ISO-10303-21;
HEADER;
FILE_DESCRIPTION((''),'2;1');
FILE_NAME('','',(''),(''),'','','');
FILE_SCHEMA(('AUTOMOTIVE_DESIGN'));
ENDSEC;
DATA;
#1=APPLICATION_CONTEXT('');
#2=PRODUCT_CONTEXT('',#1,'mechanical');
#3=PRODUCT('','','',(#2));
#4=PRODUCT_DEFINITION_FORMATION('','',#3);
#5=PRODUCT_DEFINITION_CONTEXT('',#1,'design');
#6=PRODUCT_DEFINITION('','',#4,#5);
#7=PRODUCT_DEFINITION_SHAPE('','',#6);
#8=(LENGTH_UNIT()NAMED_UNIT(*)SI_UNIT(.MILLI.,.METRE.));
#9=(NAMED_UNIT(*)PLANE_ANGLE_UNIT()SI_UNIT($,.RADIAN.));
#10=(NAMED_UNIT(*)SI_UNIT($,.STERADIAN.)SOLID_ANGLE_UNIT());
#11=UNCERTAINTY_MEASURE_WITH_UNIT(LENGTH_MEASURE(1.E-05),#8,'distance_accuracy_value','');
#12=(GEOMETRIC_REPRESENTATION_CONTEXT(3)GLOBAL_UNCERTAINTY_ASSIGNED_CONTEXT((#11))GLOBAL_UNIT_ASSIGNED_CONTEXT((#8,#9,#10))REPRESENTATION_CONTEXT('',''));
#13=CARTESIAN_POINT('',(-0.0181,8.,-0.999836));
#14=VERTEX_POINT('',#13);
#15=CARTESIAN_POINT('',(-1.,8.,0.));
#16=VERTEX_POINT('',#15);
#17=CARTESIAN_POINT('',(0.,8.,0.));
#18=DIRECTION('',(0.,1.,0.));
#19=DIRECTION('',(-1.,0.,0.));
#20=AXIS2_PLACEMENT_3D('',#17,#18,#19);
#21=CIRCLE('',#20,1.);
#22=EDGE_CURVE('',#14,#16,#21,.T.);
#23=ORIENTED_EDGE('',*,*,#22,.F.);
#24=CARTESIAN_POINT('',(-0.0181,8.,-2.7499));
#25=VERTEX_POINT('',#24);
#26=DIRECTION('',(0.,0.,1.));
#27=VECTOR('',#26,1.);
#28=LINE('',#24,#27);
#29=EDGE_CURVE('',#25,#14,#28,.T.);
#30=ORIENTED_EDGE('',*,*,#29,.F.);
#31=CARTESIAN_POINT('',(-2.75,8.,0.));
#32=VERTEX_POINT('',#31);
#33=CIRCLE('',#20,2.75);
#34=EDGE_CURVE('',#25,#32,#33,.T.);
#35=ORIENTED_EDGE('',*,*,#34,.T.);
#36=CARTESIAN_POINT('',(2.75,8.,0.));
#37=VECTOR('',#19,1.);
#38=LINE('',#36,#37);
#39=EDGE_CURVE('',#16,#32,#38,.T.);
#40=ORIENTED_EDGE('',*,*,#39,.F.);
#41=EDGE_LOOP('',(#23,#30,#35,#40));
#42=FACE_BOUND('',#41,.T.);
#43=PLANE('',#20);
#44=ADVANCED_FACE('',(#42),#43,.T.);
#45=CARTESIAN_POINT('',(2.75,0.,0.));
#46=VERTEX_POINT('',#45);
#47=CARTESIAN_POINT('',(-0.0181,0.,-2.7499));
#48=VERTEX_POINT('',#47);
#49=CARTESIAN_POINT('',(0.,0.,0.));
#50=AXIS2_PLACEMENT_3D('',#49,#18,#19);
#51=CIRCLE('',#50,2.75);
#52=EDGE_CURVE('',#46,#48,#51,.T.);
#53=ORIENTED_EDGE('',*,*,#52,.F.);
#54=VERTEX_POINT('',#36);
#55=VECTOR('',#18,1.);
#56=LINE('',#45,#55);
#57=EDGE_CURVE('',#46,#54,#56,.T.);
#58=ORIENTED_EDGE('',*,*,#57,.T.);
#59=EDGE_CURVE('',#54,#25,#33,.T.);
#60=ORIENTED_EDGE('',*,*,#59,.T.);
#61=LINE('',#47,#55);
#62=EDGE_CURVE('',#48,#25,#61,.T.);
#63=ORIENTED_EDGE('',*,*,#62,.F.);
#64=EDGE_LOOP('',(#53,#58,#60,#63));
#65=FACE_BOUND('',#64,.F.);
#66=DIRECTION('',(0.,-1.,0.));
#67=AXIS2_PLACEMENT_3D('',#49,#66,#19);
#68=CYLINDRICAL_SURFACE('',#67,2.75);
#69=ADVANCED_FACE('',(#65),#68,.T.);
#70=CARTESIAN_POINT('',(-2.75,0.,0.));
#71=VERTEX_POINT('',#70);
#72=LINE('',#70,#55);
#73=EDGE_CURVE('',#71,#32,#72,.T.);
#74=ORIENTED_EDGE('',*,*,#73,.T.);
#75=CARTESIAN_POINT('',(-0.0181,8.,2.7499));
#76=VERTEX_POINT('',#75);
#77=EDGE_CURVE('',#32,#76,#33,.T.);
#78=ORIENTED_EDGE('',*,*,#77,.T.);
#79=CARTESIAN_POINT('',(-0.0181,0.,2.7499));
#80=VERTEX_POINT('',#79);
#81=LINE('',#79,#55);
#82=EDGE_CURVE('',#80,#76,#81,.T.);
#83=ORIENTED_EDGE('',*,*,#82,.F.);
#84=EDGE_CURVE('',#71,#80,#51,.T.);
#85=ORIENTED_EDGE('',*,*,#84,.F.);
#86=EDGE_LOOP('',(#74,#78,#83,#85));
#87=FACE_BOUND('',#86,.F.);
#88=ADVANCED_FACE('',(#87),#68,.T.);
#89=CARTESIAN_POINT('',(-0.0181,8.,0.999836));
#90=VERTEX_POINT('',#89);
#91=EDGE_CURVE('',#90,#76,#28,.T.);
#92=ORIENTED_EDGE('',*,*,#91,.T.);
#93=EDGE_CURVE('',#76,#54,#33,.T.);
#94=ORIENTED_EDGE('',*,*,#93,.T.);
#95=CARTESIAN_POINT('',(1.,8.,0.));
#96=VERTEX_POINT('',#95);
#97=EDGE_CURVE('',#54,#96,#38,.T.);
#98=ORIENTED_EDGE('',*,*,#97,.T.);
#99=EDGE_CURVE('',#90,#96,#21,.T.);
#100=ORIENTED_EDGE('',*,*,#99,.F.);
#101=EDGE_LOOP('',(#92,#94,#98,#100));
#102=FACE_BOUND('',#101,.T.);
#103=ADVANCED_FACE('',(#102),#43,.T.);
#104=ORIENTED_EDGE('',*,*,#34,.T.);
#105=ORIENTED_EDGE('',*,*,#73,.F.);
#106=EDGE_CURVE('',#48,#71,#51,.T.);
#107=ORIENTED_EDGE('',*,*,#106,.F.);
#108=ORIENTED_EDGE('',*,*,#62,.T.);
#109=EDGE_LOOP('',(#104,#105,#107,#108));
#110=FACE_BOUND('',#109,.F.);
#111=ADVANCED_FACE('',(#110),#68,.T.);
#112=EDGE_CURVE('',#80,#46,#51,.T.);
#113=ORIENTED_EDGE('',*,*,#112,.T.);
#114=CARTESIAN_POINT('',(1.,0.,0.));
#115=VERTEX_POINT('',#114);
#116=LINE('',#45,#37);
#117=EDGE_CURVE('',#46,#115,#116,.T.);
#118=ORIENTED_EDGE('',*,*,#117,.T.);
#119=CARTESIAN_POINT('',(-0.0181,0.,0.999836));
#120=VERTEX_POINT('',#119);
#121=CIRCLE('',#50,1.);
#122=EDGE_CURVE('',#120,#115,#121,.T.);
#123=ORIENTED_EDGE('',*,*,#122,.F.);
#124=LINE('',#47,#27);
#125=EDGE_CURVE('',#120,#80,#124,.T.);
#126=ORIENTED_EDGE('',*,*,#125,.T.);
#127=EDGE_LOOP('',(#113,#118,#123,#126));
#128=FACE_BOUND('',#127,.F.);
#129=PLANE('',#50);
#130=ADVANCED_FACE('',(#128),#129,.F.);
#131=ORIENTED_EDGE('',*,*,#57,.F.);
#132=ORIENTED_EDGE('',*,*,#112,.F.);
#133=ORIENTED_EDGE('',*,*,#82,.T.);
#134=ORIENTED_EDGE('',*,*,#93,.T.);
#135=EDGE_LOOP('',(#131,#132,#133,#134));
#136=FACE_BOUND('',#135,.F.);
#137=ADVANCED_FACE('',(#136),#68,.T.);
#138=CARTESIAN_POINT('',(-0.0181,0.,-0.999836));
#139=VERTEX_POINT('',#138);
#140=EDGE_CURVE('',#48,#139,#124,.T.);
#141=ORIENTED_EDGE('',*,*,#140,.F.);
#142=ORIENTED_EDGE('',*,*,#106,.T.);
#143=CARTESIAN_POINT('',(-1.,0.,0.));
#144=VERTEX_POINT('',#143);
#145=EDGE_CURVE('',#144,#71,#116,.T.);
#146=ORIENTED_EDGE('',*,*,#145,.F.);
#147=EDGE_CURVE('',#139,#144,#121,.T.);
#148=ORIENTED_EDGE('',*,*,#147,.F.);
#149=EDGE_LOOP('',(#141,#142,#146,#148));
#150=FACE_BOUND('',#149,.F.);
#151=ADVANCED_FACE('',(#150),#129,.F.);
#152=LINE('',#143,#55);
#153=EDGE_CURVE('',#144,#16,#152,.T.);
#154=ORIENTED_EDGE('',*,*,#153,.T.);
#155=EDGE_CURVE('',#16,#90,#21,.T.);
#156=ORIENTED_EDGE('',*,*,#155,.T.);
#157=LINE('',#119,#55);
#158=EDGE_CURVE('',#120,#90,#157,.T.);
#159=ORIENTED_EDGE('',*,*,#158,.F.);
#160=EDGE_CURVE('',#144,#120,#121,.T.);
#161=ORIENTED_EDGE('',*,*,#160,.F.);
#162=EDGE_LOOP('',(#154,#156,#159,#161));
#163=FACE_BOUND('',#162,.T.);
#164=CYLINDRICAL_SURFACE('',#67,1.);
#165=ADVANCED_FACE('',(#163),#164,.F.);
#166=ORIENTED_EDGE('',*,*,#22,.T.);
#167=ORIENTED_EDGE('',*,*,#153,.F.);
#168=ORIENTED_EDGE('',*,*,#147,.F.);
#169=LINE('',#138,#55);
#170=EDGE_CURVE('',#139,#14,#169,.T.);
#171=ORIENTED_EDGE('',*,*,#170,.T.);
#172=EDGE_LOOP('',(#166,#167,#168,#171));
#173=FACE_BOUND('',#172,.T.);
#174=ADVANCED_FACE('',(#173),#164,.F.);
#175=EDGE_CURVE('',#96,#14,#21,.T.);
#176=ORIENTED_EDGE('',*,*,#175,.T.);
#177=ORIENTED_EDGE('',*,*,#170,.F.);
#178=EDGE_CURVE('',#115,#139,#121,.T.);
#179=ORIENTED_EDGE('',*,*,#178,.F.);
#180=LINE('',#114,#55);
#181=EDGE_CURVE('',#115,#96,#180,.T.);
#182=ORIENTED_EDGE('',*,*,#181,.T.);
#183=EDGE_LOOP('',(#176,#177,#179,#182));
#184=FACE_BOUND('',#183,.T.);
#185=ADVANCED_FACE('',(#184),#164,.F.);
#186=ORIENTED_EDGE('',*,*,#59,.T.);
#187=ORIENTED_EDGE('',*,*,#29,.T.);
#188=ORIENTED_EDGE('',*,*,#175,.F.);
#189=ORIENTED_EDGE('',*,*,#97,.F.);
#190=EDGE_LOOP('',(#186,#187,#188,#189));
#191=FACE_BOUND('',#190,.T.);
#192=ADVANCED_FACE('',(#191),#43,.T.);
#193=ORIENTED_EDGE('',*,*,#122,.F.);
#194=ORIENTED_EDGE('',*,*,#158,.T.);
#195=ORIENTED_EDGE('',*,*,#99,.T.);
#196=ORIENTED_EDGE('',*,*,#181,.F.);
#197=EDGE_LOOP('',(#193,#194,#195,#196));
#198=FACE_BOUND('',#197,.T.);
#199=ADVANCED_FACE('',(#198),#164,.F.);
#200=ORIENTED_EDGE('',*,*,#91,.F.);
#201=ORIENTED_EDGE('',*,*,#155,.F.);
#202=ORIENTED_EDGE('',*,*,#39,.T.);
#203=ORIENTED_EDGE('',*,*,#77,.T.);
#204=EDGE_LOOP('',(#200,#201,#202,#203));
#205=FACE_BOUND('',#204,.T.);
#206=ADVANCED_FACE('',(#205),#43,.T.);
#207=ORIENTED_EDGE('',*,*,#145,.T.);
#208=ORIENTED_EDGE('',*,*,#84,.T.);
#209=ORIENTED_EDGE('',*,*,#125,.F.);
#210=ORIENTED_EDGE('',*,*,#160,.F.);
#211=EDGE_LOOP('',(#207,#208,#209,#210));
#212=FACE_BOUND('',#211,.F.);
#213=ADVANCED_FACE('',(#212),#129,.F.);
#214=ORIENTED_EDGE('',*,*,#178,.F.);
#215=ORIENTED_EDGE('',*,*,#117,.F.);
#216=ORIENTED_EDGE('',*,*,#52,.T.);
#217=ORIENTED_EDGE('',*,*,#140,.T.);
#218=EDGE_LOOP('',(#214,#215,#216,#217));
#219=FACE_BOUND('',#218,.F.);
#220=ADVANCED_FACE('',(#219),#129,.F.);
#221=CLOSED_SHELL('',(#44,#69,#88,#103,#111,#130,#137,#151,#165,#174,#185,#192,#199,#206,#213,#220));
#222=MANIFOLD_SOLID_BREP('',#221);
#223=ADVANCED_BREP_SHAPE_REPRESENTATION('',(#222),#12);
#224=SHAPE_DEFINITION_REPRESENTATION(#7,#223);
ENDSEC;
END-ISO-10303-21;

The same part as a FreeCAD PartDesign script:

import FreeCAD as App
import Part
import Sketcher

doc = App.newDocument("Part")
body = doc.addObject("PartDesign::Body", "Body")

sketch1 = doc.addObject("Sketcher::SketchObject", "Sketch")
body.addObject(sketch1)
sketch1.AttachmentSupport = (doc.XZ_Plane, [""])
sketch1.MapMode = "FlatFace"
sketch1.addGeometry(Part.Circle(App.Vector(0, 0, 0), App.Vector(0, 0, 1), 2.8), False)
sketch1.addGeometry(Part.Circle(App.Vector(0, 0, 0), App.Vector(0, 0, 1), 1), False)
sketch1.addConstraint(Sketcher.Constraint("Coincident", 0, 3, -1, 1))
sketch1.addConstraint(Sketcher.Constraint("Coincident", 1, 3, -1, 1))
sketch1.addConstraint(Sketcher.Constraint("Diameter", 1, 2.0))
sketch1.addConstraint(Sketcher.Constraint("Diameter", 0, 5.5))
pad1 = doc.addObject("PartDesign::Pad", "Pad")
body.addObject(pad1)
pad1.Profile = sketch1
pad1.Length = 8
pad1.Reversed = True

doc.recompute()
